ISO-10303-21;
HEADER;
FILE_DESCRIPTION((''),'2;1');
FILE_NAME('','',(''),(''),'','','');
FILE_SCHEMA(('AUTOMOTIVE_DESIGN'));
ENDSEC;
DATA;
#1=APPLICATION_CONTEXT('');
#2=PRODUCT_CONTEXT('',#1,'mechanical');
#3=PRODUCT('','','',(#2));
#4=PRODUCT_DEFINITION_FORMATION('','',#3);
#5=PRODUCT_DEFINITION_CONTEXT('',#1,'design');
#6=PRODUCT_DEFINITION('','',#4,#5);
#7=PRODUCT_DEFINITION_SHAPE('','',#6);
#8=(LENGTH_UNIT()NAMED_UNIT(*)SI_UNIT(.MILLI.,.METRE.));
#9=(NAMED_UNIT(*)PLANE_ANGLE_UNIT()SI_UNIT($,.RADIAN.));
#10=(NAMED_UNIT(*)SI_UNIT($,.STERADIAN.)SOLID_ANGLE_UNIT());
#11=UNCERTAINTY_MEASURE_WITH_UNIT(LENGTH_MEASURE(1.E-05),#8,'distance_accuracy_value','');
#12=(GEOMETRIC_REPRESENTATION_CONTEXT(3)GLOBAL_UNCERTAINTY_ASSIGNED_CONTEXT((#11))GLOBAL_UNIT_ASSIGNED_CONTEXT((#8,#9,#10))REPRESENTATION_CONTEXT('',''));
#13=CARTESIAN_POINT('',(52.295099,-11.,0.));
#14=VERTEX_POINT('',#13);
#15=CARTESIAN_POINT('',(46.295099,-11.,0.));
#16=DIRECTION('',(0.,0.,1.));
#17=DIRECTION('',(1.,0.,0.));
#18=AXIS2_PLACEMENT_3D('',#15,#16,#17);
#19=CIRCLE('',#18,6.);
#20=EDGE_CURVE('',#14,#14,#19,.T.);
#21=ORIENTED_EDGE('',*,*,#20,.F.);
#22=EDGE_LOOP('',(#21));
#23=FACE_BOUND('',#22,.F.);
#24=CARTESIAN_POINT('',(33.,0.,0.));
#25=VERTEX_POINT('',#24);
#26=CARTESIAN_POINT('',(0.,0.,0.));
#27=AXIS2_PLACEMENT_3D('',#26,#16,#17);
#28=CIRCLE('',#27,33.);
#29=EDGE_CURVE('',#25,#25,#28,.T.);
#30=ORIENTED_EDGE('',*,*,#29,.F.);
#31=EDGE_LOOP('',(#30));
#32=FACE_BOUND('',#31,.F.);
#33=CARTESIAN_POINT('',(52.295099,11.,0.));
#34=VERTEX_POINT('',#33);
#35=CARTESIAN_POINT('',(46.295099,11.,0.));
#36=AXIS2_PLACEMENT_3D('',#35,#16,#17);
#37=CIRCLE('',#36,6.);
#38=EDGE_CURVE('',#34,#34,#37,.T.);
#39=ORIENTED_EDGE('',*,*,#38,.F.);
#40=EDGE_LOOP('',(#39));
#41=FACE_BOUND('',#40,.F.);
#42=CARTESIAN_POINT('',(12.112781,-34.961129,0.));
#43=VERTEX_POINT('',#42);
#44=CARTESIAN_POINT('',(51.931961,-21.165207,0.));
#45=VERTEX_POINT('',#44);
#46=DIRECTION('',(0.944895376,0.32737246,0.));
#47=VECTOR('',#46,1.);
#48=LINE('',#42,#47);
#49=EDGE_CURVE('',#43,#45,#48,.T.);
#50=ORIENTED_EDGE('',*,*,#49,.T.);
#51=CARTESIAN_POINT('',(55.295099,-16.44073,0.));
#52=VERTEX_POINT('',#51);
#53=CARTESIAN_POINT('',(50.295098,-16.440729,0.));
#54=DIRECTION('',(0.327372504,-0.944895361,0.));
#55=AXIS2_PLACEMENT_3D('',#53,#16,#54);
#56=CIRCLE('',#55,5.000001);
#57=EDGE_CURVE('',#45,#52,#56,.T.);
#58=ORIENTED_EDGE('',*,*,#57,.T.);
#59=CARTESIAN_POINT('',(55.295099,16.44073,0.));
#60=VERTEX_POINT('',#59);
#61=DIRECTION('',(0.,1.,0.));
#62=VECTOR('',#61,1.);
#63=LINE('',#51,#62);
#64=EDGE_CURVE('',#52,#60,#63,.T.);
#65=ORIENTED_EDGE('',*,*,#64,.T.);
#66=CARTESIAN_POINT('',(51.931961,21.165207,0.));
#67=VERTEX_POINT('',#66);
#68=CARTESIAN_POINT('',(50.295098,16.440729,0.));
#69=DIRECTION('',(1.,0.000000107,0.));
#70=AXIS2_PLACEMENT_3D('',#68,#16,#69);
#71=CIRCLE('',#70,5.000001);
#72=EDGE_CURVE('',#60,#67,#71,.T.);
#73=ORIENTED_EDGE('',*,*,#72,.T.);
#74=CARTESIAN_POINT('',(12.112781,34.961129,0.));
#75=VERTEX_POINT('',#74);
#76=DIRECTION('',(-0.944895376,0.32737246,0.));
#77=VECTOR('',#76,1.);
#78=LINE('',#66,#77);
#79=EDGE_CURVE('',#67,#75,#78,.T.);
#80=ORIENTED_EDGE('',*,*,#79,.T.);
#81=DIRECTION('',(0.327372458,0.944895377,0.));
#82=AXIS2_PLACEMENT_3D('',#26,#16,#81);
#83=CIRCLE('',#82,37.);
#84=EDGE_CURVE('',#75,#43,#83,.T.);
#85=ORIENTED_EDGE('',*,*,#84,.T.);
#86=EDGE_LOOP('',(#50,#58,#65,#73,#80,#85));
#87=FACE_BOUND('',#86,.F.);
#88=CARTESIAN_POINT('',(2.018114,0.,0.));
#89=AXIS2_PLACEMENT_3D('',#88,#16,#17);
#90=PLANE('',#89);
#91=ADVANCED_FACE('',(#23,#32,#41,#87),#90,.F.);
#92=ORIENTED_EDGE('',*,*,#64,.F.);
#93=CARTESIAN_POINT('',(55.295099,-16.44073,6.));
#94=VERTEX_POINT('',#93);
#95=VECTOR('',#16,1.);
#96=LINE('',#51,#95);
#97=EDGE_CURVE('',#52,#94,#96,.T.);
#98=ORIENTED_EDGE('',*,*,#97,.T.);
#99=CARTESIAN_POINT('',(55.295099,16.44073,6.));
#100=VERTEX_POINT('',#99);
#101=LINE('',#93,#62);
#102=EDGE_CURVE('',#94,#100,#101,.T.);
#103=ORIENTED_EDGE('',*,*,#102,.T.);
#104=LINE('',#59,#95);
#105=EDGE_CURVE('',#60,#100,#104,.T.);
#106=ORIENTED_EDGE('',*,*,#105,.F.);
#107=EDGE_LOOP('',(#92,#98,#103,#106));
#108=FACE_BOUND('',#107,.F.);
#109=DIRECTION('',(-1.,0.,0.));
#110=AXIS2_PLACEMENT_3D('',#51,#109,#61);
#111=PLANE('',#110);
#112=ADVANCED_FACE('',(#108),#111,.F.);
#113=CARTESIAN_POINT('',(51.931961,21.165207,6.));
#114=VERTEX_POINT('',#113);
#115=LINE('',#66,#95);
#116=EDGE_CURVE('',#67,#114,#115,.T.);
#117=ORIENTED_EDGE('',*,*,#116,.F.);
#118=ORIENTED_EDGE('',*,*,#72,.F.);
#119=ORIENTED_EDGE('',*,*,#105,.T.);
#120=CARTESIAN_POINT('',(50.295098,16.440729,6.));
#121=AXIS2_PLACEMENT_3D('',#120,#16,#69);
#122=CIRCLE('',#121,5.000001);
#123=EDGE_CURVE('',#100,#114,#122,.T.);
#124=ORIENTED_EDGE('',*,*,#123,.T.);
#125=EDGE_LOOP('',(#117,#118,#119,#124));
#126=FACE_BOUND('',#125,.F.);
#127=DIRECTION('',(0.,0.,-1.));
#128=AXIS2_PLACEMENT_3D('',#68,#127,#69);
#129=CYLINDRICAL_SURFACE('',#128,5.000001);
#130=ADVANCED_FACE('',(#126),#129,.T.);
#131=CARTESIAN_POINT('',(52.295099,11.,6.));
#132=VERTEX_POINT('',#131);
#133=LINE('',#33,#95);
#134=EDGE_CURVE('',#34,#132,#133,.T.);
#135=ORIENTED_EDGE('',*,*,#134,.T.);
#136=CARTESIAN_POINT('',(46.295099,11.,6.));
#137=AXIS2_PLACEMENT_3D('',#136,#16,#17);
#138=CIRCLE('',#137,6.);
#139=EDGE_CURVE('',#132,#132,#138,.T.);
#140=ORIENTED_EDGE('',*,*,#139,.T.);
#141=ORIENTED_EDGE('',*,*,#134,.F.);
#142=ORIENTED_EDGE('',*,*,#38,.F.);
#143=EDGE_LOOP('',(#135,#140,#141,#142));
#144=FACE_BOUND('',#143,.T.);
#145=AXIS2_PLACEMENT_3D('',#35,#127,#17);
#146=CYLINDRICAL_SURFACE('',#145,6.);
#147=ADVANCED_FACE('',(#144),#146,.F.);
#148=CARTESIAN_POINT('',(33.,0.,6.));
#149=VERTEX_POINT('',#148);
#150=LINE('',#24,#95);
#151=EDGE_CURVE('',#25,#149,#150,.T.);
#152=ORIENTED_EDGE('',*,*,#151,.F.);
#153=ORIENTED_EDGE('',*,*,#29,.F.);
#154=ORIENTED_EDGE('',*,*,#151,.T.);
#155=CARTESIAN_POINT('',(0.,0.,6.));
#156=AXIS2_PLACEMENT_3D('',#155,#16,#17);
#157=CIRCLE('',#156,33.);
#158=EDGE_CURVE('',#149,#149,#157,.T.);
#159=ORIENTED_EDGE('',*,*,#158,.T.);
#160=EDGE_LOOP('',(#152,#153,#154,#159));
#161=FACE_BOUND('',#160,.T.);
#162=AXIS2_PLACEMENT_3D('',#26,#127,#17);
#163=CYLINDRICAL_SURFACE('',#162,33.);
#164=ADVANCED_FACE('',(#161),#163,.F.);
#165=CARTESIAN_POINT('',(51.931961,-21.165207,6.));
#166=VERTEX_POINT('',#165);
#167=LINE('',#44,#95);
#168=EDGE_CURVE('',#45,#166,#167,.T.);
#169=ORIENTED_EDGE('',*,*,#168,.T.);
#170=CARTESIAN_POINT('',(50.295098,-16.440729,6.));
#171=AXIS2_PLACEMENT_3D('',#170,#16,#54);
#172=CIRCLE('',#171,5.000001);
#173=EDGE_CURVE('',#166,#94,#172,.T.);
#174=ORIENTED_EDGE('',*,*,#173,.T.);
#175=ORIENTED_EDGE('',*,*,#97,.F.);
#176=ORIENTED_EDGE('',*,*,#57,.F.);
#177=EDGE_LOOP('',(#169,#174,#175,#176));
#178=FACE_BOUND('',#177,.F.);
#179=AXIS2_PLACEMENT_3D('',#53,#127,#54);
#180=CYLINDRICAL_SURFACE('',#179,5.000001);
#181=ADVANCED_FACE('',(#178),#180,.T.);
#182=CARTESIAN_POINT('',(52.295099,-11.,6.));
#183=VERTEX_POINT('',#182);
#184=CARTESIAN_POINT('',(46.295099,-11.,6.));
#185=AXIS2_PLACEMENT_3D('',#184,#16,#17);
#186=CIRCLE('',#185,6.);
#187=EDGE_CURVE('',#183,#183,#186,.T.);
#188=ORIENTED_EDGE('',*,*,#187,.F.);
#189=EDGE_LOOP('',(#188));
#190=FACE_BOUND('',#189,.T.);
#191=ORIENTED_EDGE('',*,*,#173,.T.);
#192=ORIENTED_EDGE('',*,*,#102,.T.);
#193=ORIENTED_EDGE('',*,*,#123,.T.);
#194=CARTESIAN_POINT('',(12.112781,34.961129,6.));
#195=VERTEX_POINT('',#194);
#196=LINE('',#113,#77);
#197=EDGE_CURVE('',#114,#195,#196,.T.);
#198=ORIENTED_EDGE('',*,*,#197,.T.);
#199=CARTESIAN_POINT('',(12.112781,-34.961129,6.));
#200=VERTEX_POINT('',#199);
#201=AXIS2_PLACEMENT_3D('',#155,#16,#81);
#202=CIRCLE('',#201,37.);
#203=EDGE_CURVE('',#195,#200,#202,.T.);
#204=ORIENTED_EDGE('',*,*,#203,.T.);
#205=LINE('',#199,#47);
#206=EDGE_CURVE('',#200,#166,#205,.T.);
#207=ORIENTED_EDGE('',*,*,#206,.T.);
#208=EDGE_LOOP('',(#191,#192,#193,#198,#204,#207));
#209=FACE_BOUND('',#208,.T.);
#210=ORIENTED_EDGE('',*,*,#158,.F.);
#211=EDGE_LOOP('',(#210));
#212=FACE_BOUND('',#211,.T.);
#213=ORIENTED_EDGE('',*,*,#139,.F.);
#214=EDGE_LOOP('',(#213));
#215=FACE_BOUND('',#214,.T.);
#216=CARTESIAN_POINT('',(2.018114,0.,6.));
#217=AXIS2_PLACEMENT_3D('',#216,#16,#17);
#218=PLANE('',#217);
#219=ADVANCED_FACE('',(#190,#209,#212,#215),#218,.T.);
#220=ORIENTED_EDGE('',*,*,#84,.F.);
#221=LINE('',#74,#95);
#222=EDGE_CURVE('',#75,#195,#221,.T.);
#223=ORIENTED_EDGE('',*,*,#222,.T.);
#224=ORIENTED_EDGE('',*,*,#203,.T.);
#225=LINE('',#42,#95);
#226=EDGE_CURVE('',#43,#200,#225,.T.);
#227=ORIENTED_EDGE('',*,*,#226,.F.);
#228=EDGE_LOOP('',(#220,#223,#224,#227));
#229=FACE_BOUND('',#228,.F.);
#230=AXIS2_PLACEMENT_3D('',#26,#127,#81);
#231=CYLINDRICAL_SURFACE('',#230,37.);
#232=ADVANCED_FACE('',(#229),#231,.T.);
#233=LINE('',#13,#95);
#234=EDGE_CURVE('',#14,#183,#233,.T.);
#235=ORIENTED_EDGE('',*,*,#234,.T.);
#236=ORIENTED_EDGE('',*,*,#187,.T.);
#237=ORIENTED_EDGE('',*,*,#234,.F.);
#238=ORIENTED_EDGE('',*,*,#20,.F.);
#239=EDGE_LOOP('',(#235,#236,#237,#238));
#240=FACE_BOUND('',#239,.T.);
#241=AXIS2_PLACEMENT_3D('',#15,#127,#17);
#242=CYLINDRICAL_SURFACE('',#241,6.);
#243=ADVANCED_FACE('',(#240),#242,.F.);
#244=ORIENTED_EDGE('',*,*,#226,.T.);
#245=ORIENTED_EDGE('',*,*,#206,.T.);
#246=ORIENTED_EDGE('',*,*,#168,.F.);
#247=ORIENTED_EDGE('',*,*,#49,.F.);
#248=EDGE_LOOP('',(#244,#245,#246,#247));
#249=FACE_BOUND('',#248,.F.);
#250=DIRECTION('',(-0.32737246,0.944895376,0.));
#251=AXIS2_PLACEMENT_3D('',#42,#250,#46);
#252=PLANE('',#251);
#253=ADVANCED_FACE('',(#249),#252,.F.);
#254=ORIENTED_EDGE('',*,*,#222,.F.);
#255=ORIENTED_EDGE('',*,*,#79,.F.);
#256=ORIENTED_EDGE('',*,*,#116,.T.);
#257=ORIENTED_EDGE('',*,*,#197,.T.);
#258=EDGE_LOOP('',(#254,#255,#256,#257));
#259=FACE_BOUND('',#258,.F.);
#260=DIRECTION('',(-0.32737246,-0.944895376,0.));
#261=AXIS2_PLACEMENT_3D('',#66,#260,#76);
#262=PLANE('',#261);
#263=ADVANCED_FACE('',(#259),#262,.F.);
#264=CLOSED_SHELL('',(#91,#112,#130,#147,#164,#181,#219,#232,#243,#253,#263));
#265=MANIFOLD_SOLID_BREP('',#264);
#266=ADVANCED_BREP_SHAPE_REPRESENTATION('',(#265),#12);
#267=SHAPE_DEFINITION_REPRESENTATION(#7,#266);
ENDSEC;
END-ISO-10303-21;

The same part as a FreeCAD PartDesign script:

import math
import FreeCAD as App
import Part
import Sketcher

doc = App.newDocument("Part")
body = doc.addObject("PartDesign::Body", "Body")

# Sketch on XY plane
sketch1 = body.newObject("Sketcher::SketchObject", "Sketch")
sketch1.AttachmentSupport = (doc.getObject("XY_Plane"), [""])
sketch1.MapMode = "FlatFace"
sketch1.addGeometry([
    Part.ArcOfCircle(Part.Circle(App.Vector(0, 0, 0), App.Vector(0, 0, 1), 37), math.radians(71), math.radians(289)),  # 0
    Part.LineSegment(App.Vector(12, -35, 0), App.Vector(52, -21, 0)),  # 1
    Part.ArcOfCircle(Part.Circle(App.Vector(50, -16, 0), App.Vector(0, 0, 1), 5), math.radians(-71), math.radians(0)),  # 2
    Part.LineSegment(App.Vector(55, -16, 0), App.Vector(55, 16, 0)),  # 3
    Part.ArcOfCircle(Part.Circle(App.Vector(50, 16, 0), App.Vector(0, 0, 1), 5), math.radians(0), math.radians(71)),  # 4
    Part.LineSegment(App.Vector(52, 21, 0), App.Vector(12, 35, 0)),  # 5
    Part.Circle(App.Vector(46, -11, 0), App.Vector(0, 0, 1), 6),  # 6
    Part.Circle(App.Vector(0, 0, 0), App.Vector(0, 0, 1), 33),  # 7
    Part.Circle(App.Vector(46, 11, 0), App.Vector(0, 0, 1), 6),  # 8
], False)
sketch1.addConstraint([
    Sketcher.Constraint("Tangent", 0, 2, 1, 1),
    Sketcher.Constraint("Tangent", 1, 2, 2, 1),
    Sketcher.Constraint("Tangent", 2, 2, 3, 1),
    Sketcher.Constraint("Tangent", 3, 2, 4, 1),
    Sketcher.Constraint("Tangent", 4, 2, 5, 1),
    Sketcher.Constraint("Tangent", 5, 2, 0, 1),
    Sketcher.Constraint("Vertical", 3),
    Sketcher.Constraint("Coincident", 0, 3, -1, 1),
    Sketcher.Constraint("Coincident", 7, 3, -1, 1),
    Sketcher.Constraint("Equal", 2, 4),
    Sketcher.Constraint("Equal", 6, 8),
    Sketcher.Constraint("Symmetric", 6, 3, 8, 3, -1),
    Sketcher.Constraint("Vertical", 1, 2, 4, 2),
    Sketcher.Constraint("Diameter", 6, 12.0),
    Sketcher.Constraint("Diameter", 7, 66.0),
    Sketcher.Constraint("Radius", 0, 37.0),
    Sketcher.Constraint("Radius", 2, 5.000001),
    Sketcher.Constraint("DistanceY", 6, 3, -1, 1, 11.0),
    Sketcher.Constraint("DistanceX", 6, 3, 2, 3, 3.999999),
    Sketcher.Constraint("DistanceY", 3, 1, 3, 2, 32.88146),
    Sketcher.Constraint("DistanceX", -1, 1, 2, 3, 50.295098),
])
pad1 = body.newObject("PartDesign::Pad", "Pad")
pad1.Profile = sketch1
pad1.Length = 6

doc.recompute()
